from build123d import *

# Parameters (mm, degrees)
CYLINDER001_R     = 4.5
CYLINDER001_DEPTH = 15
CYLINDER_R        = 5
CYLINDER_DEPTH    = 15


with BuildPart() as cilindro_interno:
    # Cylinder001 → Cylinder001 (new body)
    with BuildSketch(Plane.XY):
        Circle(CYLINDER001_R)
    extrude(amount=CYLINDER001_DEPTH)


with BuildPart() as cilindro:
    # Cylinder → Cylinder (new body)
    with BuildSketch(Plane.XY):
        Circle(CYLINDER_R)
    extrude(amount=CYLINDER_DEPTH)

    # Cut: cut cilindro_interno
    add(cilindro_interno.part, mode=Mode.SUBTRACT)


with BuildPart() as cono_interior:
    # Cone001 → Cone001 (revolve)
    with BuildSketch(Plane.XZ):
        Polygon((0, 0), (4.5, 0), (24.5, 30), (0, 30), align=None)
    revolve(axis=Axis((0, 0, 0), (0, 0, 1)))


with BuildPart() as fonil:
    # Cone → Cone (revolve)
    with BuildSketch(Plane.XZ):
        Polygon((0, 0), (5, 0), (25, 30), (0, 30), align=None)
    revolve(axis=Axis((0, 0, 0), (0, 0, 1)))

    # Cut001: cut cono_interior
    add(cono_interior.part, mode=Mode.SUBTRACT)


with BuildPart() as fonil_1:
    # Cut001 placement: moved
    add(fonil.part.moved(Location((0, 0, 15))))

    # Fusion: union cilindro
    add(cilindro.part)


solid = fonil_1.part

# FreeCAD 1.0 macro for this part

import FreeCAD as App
import Part
import Sketcher


def add_polygon(sketch, points):
    """Adds a closed chain of lines whose ends are joined by coincident constraints."""
    first, n = sketch.GeometryCount, len(points)
    for a, b in zip(points, points[1:] + points[:1]):
        sketch.addGeometry(Part.LineSegment(App.Vector(*a, 0), App.Vector(*b, 0)), False)
    for i in range(n):
        sketch.addConstraint(Sketcher.Constraint("Coincident", first + i, 2, first + (i + 1) % n, 1))

doc = App.newDocument("Part")
body = doc.addObject("PartDesign::Body", "Body")

sketch1 = doc.addObject("Sketcher::SketchObject", "Sketch")
body.addObject(sketch1)
sketch1.AttachmentSupport = (doc.XY_Plane, [""])
sketch1.MapMode = "FlatFace"
sketch1.addGeometry(Part.Circle(App.Vector(0, 0, 0), App.Vector(0, 0, 1), 4.5), False)
sketch1.addConstraint(Sketcher.Constraint("Coincident", 0, 3, -1, 1))
sketch1.addConstraint(Sketcher.Constraint("Diameter", 0, 9.0))
pad1 = doc.addObject("PartDesign::Pad", "Pad")
body.addObject(pad1)
pad1.Profile = sketch1
pad1.Length = 15
body2 = doc.addObject("PartDesign::Body", "Body001")

sketch2 = doc.addObject("Sketcher::SketchObject", "Sketch001")
body2.addObject(sketch2)
sketch2.AttachmentSupport = (doc.getObject("XY_Plane001"), [""])
sketch2.MapMode = "FlatFace"
sketch2.addGeometry(Part.Circle(App.Vector(0, 0, 0), App.Vector(0, 0, 1), 5), False)
sketch2.addConstraint(Sketcher.Constraint("Coincident", 0, 3, -1, 1))
sketch2.addConstraint(Sketcher.Constraint("Diameter", 0, 10.0))
pad2 = doc.addObject("PartDesign::Pad", "Pad001")
body2.addObject(pad2)
pad2.Profile = sketch2
pad2.Length = 15
doc.recompute()

boolean = doc.addObject("PartDesign::Boolean", "Boolean")
body2.addObject(boolean)
boolean.Type = "Cut"
boolean.addObjects([body])
body3 = doc.addObject("PartDesign::Body", "Body002")

sketch3 = doc.addObject("Sketcher::SketchObject", "Sketch002")
body3.addObject(sketch3)
sketch3.AttachmentSupport = (doc.getObject("XZ_Plane002"), [""])
sketch3.MapMode = "FlatFace"
add_polygon(sketch3, [(0, 0), (4.5, 0), (24.5, 30), (0, 30)])
sketch3.addConstraint(Sketcher.Constraint("Horizontal", 0))
sketch3.addConstraint(Sketcher.Constraint("Horizontal", 2))
sketch3.addConstraint(Sketcher.Constraint("Vertical", 3))
sketch3.addConstraint(Sketcher.Constraint("Coincident", 3, 2, -1, 1))
sketch3.addConstraint(Sketcher.Constraint("DistanceY", 3, 2, 3, 1, 30.0))
sketch3.addConstraint(Sketcher.Constraint("DistanceX", 0, 1, 0, 2, 4.5))
sketch3.addConstraint(Sketcher.Constraint("DistanceX", 2, 2, 2, 1, 24.5))
revolution = doc.addObject("PartDesign::Revolution", "Revolution")
body3.addObject(revolution)
revolution.Profile = sketch3
revolution.ReferenceAxis = (sketch3, ["V_Axis"])
revolution.Angle = 360
body4 = doc.addObject("PartDesign::Body", "Body003")

sketch4 = doc.addObject("Sketcher::SketchObject", "Sketch003")
body4.addObject(sketch4)
sketch4.AttachmentSupport = (doc.getObject("XZ_Plane003"), [""])
sketch4.MapMode = "FlatFace"
add_polygon(sketch4, [(0, 0), (5, 0), (25, 30), (0, 30)])
sketch4.addConstraint(Sketcher.Constraint("Horizontal", 0))
sketch4.addConstraint(Sketcher.Constraint("Horizontal", 2))
sketch4.addConstraint(Sketcher.Constraint("Vertical", 3))
sketch4.addConstraint(Sketcher.Constraint("Coincident", 3, 2, -1, 1))
sketch4.addConstraint(Sketcher.Constraint("DistanceX", 0, 1, 0, 2, 5.0))
sketch4.addConstraint(Sketcher.Constraint("DistanceX", 2, 2, 2, 1, 25.0))
sketch4.addConstraint(Sketcher.Constraint("DistanceY", 3, 2, 3, 1, 30.0))
revolution2 = doc.addObject("PartDesign::Revolution", "Revolution001")
body4.addObject(revolution2)
revolution2.Profile = sketch4
revolution2.ReferenceAxis = (sketch4, ["V_Axis"])
revolution2.Angle = 360
doc.recompute()

boolean2 = doc.addObject("PartDesign::Boolean", "Boolean001")
body4.addObject(boolean2)
boolean2.Type = "Cut"
boolean2.addObjects([body3])
body5 = doc.addObject("PartDesign::Body", "Body004")
doc.recompute()

body4.Placement = App.Placement(App.Vector(0, 0, 15), App.Rotation(App.Vector(0, 0, 1), 0))
boolean3 = doc.addObject("PartDesign::Boolean", "Boolean002")
body5.addObject(boolean3)
boolean3.Type = "Fuse"
boolean3.addObjects([body4])
doc.recompute()

boolean4 = doc.addObject("PartDesign::Boolean", "Boolean003")
body5.addObject(boolean4)
boolean4.Type = "Fuse"
boolean4.addObjects([body2])

doc.recompute()
